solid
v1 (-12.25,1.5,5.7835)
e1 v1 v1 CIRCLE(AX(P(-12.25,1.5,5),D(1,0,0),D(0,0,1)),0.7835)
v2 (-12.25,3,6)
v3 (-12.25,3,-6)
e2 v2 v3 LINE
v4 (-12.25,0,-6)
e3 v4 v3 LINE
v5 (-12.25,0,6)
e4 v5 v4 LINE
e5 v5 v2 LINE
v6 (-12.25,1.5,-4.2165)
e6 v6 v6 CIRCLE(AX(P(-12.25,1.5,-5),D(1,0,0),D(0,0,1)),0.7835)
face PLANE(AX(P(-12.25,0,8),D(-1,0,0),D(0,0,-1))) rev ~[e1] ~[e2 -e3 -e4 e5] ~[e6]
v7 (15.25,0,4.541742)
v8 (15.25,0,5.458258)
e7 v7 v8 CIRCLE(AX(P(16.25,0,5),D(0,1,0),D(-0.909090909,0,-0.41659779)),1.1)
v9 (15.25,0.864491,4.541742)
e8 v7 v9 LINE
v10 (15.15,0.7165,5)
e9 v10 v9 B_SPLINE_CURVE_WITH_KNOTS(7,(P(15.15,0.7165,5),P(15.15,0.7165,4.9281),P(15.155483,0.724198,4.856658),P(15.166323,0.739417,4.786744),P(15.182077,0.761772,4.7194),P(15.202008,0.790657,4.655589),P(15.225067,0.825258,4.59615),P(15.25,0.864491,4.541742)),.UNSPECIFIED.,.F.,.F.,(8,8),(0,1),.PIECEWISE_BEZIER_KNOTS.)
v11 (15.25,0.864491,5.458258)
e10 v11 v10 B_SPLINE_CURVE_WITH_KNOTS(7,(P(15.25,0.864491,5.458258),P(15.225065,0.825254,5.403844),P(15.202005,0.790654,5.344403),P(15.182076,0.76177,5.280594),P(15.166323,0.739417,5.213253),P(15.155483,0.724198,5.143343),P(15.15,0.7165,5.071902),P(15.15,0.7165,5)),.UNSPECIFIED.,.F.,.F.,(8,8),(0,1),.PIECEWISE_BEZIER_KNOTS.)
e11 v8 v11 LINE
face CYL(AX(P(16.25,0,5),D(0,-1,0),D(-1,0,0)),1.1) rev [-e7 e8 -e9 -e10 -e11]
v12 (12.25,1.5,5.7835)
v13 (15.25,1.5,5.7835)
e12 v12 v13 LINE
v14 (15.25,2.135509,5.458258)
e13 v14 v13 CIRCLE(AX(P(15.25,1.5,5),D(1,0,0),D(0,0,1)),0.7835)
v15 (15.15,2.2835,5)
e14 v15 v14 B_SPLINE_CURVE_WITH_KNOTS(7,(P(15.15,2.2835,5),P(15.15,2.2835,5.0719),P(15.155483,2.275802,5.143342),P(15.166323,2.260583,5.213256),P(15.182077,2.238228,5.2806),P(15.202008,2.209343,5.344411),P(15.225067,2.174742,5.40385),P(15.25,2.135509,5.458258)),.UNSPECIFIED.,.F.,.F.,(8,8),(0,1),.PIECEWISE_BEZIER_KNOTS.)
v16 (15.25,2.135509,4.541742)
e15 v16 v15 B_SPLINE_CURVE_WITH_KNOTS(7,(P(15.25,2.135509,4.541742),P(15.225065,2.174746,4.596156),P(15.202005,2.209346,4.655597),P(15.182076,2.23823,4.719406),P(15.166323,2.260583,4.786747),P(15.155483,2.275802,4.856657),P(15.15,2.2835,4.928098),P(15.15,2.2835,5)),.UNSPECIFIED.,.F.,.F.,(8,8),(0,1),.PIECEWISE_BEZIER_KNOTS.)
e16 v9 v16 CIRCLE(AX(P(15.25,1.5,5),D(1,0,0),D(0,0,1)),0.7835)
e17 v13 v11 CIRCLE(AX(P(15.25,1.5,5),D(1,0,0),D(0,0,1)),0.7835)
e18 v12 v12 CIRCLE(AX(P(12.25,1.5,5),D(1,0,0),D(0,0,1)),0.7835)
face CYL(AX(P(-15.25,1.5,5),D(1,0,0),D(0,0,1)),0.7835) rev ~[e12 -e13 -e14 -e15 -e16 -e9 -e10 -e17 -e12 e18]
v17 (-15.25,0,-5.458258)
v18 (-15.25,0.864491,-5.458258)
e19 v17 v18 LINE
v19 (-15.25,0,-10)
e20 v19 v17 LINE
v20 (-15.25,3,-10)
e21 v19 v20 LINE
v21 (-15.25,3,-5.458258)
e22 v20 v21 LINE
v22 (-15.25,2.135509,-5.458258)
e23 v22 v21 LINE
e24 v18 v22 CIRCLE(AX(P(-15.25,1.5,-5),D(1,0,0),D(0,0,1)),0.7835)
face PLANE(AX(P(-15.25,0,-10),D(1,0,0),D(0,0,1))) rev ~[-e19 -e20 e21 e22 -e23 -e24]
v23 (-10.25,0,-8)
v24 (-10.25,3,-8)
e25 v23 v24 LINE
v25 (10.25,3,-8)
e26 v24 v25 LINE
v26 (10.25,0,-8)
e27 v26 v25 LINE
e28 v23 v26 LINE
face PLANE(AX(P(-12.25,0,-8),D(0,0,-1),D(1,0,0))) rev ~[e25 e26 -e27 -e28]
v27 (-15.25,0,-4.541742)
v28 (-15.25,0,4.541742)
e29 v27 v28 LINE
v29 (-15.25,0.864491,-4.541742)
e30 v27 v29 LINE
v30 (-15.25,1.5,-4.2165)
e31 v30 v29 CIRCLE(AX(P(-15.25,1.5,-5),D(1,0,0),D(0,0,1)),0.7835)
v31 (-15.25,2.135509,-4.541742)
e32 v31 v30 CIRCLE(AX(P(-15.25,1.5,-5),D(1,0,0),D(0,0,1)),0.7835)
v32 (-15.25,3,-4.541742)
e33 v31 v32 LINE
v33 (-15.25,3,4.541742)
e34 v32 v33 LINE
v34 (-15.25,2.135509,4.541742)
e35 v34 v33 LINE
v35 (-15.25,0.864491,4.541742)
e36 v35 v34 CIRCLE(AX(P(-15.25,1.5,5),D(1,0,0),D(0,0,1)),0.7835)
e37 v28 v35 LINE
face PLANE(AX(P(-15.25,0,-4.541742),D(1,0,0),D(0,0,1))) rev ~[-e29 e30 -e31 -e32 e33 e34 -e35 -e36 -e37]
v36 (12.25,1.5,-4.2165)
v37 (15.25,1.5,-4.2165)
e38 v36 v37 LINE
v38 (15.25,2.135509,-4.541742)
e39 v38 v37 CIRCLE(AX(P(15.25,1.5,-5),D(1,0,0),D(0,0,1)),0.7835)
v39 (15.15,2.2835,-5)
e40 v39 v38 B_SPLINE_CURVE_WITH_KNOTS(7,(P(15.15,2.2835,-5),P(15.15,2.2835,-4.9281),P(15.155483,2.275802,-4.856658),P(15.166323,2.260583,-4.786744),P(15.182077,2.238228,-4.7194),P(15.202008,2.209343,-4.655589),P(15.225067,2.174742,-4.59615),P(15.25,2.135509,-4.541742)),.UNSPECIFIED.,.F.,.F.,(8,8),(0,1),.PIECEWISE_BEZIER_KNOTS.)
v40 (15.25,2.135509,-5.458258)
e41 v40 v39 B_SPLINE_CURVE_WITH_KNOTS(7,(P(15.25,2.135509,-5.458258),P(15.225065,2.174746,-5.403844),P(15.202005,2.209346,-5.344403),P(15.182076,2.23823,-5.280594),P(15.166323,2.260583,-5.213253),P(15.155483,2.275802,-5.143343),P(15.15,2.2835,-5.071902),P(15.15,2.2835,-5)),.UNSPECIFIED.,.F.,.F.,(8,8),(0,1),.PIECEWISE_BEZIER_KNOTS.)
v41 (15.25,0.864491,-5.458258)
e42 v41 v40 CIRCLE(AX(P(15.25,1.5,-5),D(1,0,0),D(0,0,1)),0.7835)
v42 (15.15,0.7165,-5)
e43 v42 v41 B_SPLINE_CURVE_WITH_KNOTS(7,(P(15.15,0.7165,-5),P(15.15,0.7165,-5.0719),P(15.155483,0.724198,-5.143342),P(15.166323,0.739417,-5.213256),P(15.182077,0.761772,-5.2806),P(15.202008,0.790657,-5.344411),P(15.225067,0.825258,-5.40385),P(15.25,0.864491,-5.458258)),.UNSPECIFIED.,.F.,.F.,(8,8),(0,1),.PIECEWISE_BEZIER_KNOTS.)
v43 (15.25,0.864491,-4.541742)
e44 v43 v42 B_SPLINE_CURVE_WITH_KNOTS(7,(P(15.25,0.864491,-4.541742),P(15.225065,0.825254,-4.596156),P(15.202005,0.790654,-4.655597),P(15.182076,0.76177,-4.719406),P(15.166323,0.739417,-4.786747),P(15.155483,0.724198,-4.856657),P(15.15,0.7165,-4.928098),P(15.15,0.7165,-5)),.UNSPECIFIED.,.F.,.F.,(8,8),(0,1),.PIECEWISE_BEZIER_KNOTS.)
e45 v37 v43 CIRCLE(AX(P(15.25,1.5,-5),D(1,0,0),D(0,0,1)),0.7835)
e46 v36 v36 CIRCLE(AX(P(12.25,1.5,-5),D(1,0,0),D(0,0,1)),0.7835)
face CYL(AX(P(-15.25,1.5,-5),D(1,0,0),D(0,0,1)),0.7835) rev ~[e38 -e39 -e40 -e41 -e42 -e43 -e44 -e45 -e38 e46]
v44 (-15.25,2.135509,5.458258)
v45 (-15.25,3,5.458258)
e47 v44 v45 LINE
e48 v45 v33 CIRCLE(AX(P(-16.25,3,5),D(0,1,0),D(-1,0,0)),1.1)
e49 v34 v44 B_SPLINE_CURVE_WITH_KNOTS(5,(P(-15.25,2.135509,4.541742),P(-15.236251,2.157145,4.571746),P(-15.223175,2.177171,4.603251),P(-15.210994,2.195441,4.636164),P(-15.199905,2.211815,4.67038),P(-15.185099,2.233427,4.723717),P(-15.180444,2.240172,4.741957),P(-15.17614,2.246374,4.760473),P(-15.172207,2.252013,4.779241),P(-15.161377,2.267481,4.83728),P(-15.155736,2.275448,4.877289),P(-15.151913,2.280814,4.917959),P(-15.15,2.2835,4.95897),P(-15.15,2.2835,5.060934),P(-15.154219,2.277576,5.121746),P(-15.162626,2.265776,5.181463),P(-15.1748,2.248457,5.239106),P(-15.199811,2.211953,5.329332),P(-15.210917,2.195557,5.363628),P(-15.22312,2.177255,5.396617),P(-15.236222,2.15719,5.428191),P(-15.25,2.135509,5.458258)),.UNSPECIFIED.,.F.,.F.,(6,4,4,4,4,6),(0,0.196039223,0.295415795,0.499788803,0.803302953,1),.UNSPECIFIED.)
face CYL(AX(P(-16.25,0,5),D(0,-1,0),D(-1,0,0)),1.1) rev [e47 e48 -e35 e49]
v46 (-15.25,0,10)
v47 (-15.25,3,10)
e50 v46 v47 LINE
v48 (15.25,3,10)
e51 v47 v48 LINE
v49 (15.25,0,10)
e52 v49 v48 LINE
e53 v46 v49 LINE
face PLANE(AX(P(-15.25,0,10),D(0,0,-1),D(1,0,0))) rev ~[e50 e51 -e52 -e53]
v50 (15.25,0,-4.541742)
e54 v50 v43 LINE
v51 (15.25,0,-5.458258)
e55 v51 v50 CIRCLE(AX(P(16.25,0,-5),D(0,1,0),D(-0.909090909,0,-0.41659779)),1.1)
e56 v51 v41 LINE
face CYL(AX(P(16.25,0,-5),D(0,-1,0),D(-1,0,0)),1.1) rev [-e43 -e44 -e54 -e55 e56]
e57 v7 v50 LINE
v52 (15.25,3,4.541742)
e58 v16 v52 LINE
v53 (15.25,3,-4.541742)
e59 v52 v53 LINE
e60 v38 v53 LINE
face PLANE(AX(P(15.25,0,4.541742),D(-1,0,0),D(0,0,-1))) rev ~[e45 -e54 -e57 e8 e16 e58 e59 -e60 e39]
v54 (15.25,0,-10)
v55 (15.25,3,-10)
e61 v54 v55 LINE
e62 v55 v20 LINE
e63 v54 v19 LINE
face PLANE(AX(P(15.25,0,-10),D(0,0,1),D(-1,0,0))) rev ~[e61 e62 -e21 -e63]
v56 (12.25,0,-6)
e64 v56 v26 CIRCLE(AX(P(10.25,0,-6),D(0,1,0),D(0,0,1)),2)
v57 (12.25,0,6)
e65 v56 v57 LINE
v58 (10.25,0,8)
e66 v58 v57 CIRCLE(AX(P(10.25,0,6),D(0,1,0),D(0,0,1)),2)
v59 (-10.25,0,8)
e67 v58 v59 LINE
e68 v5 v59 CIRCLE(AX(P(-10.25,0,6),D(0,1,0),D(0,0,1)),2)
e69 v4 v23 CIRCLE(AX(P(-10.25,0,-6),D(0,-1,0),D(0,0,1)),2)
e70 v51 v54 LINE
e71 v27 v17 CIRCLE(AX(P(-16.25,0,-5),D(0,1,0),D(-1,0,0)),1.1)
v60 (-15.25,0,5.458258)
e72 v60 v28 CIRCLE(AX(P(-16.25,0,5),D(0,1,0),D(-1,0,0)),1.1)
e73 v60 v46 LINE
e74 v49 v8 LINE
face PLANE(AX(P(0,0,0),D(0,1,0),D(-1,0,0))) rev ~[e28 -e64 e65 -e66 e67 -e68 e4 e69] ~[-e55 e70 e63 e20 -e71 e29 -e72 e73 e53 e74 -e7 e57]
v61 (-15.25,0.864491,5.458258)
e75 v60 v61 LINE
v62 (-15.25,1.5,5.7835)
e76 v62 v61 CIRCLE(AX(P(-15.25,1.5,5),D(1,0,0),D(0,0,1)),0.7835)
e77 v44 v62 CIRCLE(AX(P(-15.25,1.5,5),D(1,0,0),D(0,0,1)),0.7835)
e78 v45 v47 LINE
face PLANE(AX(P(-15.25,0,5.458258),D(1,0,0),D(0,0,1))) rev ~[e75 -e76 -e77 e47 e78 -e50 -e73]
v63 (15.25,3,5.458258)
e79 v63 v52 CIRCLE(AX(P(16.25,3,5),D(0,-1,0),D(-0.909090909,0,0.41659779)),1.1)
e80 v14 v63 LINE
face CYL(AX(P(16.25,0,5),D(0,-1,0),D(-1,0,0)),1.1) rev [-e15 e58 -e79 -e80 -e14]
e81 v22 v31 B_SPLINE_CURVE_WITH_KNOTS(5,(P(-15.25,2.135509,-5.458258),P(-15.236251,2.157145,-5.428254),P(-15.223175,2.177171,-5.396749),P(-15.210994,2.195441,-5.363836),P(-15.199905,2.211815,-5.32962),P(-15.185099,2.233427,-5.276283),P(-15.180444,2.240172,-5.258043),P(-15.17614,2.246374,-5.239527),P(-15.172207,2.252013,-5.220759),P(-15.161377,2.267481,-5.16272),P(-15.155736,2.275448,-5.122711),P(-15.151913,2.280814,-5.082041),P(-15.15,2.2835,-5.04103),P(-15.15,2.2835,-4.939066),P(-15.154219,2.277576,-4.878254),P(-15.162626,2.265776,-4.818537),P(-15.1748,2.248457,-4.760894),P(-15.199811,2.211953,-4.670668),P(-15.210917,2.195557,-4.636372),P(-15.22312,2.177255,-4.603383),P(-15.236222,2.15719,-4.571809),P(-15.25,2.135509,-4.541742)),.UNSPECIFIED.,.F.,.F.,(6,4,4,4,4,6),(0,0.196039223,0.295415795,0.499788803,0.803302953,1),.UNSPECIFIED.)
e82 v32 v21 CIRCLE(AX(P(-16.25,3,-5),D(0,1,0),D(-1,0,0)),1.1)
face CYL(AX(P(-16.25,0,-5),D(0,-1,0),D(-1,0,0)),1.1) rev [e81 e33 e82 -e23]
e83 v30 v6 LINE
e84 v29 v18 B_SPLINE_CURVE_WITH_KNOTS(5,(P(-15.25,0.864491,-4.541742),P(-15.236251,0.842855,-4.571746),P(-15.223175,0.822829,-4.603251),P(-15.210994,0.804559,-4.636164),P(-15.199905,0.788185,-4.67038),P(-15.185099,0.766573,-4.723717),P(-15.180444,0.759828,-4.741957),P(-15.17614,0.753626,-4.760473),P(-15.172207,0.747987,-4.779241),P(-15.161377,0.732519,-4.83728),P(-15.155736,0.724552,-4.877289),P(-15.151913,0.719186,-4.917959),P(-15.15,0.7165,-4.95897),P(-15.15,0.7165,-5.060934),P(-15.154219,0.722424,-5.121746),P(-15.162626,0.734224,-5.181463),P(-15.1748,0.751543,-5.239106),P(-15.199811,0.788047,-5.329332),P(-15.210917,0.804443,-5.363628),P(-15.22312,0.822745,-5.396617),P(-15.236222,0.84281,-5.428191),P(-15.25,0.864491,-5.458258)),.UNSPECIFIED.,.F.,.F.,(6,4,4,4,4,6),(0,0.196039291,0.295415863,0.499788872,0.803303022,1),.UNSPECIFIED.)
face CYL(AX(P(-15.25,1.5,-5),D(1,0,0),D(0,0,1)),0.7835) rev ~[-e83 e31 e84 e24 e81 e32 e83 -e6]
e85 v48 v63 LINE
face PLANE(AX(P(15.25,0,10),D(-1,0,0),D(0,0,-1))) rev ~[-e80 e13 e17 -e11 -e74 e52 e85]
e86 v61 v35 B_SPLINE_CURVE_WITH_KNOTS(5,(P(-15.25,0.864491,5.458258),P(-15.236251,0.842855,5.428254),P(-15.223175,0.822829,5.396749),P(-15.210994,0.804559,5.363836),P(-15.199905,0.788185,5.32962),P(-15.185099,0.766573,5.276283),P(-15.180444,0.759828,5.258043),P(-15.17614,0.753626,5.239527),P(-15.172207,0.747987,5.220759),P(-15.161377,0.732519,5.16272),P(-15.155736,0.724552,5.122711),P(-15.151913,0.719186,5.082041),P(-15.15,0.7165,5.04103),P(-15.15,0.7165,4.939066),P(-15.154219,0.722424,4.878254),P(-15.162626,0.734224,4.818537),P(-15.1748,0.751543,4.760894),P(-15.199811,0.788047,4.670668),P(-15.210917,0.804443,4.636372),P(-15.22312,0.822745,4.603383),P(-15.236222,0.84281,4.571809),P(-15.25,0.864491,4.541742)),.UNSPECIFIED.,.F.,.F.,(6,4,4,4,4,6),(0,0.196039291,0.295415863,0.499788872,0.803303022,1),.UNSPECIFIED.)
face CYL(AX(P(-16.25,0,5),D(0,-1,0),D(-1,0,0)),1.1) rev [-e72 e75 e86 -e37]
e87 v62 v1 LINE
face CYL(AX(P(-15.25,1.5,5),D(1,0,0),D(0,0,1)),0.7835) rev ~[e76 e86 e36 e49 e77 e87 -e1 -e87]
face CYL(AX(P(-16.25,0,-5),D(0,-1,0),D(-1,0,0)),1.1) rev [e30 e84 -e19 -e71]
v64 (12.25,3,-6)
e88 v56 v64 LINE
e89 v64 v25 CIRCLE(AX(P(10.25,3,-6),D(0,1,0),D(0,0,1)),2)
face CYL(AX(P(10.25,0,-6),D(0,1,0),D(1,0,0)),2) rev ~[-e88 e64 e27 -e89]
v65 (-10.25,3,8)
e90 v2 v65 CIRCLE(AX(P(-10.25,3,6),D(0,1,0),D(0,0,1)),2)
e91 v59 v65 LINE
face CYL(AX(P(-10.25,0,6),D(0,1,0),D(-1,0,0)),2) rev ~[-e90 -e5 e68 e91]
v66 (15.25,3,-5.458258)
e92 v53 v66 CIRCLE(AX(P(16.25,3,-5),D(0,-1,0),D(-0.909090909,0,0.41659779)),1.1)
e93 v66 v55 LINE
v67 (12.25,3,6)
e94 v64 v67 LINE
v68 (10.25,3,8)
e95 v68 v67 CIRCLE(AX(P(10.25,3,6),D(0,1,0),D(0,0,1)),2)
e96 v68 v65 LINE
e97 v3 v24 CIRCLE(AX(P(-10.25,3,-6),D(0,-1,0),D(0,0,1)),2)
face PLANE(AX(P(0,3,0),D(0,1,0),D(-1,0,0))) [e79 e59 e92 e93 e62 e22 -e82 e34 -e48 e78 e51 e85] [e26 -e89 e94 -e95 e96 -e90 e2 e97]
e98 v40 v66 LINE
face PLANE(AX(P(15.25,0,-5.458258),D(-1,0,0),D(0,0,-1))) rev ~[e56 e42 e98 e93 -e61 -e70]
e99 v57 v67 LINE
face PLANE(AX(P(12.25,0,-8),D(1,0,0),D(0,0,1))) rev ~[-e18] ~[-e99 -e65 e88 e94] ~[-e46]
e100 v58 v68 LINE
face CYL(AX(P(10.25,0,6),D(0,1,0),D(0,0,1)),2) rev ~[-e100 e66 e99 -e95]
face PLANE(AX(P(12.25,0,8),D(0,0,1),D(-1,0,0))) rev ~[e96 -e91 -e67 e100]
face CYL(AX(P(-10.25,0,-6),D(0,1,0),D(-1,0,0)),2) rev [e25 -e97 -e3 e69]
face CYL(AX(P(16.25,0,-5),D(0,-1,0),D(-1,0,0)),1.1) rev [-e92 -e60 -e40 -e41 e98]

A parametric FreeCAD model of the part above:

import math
import FreeCAD as App
import Part
import Sketcher

V = App.Vector
Q = App.Units.Quantity


def edges_at(feature, points):
    """Names of the edges that pass closest to the given points."""
    edges = feature.Shape.Edges
    near = lambda p: min(range(len(edges)), key=lambda i: edges[i].distToShape(Part.Vertex(*p))[0])
    return sorted({f"Edge{near(p) + 1}" for p in points})

doc = App.newDocument("Part")
body = doc.addObject("PartDesign::Body", "Body")

sketch1 = body.newObject("Sketcher::SketchObject", "Sketch")
sketch1.AttachmentSupport = (doc.getObject("XZ_Plane"), [""])
sketch1.MapMode = "FlatFace"
sketch1.addGeometry(Part.LineSegment(V(-15.2, 5.5, 0), V(-15.2, 10, 0)), False)
sketch1.addGeometry(Part.LineSegment(V(-15.2, 10, 0), V(15.2, 10, 0)), False)
sketch1.addGeometry(Part.LineSegment(V(15.2, 10, 0), V(15.2, 5.5, 0)), False)
sketch1.addGeometry(Part.ArcOfCircle(Part.Circle(V(16.2, 5, 0), V(0, 0, 1), 1.1), math.radians(155), math.radians(205)), False)
sketch1.addGeometry(Part.LineSegment(V(15.2, 4.5, 0), V(15.2, -4.5, 0)), False)
sketch1.addGeometry(Part.ArcOfCircle(Part.Circle(V(16.2, -5, 0), V(0, 0, 1), 1.1), math.radians(155), math.radians(205)), False)
sketch1.addGeometry(Part.LineSegment(V(15.2, -5.5, 0), V(15.2, -10, 0)), False)
sketch1.addGeometry(Part.LineSegment(V(15.2, -10, 0), V(-15.2, -10, 0)), False)
sketch1.addGeometry(Part.LineSegment(V(-15.2, -10, 0), V(-15.2, -5.5, 0)), False)
sketch1.addGeometry(Part.ArcOfCircle(Part.Circle(V(-16.2, -5, 0), V(0, 0, 1), 1.1), math.radians(-25), math.radians(25)), False)
sketch1.addGeometry(Part.LineSegment(V(-15.2, -4.5, 0), V(-15.2, 4.5, 0)), False)
sketch1.addGeometry(Part.ArcOfCircle(Part.Circle(V(-16.2, 5, 0), V(0, 0, 1), 1.1), math.radians(-25), math.radians(25)), False)
sketch1.addGeometry(Part.LineSegment(V(-12.2, 8, 0), V(-12.2, -8, 0)), False)
sketch1.addGeometry(Part.LineSegment(V(-12.2, -8, 0), V(12.2, -8, 0)), False)
sketch1.addGeometry(Part.LineSegment(V(12.2, -8, 0), V(12.2, 8, 0)), False)
sketch1.addGeometry(Part.LineSegment(V(12.2, 8, 0), V(-12.2, 8, 0)), False)
sketch1.addConstraint(Sketcher.Constraint("Coincident", 0, 2, 1, 1))
sketch1.addConstraint(Sketcher.Constraint("Coincident", 1, 2, 2, 1))
sketch1.addConstraint(Sketcher.Constraint("Coincident", 2, 2, 3, 1))
sketch1.addConstraint(Sketcher.Constraint("Coincident", 3, 2, 4, 1))
sketch1.addConstraint(Sketcher.Constraint("Coincident", 4, 2, 5, 1))
sketch1.addConstraint(Sketcher.Constraint("Coincident", 5, 2, 6, 1))
sketch1.addConstraint(Sketcher.Constraint("Coincident", 6, 2, 7, 1))
sketch1.addConstraint(Sketcher.Constraint("Coincident", 7, 2, 8, 1))
sketch1.addConstraint(Sketcher.Constraint("Coincident", 8, 2, 9, 1))
sketch1.addConstraint(Sketcher.Constraint("Coincident", 9, 2, 10, 1))
sketch1.addConstraint(Sketcher.Constraint("Coincident", 10, 2, 11, 1))
sketch1.addConstraint(Sketcher.Constraint("Coincident", 11, 2, 0, 1))
sketch1.addConstraint(Sketcher.Constraint("Coincident", 12, 2, 13, 1))
sketch1.addConstraint(Sketcher.Constraint("Coincident", 13, 2, 14, 1))
sketch1.addConstraint(Sketcher.Constraint("Coincident", 14, 2, 15, 1))
sketch1.addConstraint(Sketcher.Constraint("Coincident", 15, 2, 12, 1))
sketch1.addConstraint(Sketcher.Constraint("Vertical", 0))
sketch1.addConstraint(Sketcher.Constraint("Horizontal", 1))
sketch1.addConstraint(Sketcher.Constraint("Vertical", 2))
sketch1.addConstraint(Sketcher.Constraint("Vertical", 4))
sketch1.addConstraint(Sketcher.Constraint("Vertical", 6))
sketch1.addConstraint(Sketcher.Constraint("Horizontal", 7))
sketch1.addConstraint(Sketcher.Constraint("Vertical", 8))
sketch1.addConstraint(Sketcher.Constraint("Vertical", 10))
sketch1.addConstraint(Sketcher.Constraint("Vertical", 12))
sketch1.addConstraint(Sketcher.Constraint("Horizontal", 13))
sketch1.addConstraint(Sketcher.Constraint("Vertical", 14))
sketch1.addConstraint(Sketcher.Constraint("Horizontal", 15))
sketch1.addConstraint(Sketcher.Constraint("Equal", 3, 5))
sketch1.addConstraint(Sketcher.Constraint("Equal", 5, 9))
sketch1.addConstraint(Sketcher.Constraint("Equal", 9, 11))
sketch1.addConstraint(Sketcher.Constraint("Symmetric", 3, 3, 9, 3, -1, 1))
sketch1.addConstraint(Sketcher.Constraint("Symmetric", 5, 3, 11, 3, -1, 1))
sketch1.addConstraint(Sketcher.Constraint("Symmetric", 0, 2, 6, 2, -1, 1))
sketch1.addConstraint(Sketcher.Constraint("Symmetric", 12, 2, 14, 2, -1, 1))
sketch1.addConstraint(Sketcher.Constraint("Symmetric", 5, 3, 9, 3, -2))
sketch1.addConstraint(Sketcher.Constraint("Horizontal", 5, 2, 8, 2))
sketch1.addConstraint(Sketcher.Constraint("Horizontal", 4, 2, 9, 2))
sketch1.addConstraint(Sketcher.Constraint("Horizontal", 2, 2, 11, 2))
sketch1.addConstraint(Sketcher.Constraint("Vertical", 2, 2, 3, 2))
sketch1.addConstraint(Sketcher.Constraint("Radius", 3, Q("1.1 mm")))
sketch1.addConstraint(Sketcher.Constraint("DistanceX", 1, 1, 1, 2, Q("30.5 mm")))
sketch1.addConstraint(Sketcher.Constraint("DistanceY", -1, 1, 0, 2, Q("10 mm")))
sketch1.addConstraint(Sketcher.Constraint("DistanceY", 5, 3, 3, 3, Q("10 mm")))
sketch1.addConstraint(Sketcher.Constraint("DistanceX", 11, 3, 0, 2, Q("1 mm")))
sketch1.addConstraint(Sketcher.Constraint("DistanceX", 7, 2, 12, 2, Q("3 mm")))
sketch1.addConstraint(Sketcher.Constraint("DistanceY", 7, 2, 12, 2, Q("2 mm")))
pad1 = body.newObject("PartDesign::Pad", "Pad")
pad1.Profile = sketch1
pad1.Length = 3
pad1.Reversed = True
doc.recompute()

fillet = body.newObject("PartDesign::Fillet", "Fillet")
fillet.Base = (pad1, edges_at(pad1, [
    (12.25, 1.5, -8),
    (12.25, 1.5, 8),
    (-12.25, 1.5, 8),
    (-12.25, 1.5, -8),
]))
fillet.Radius = 2

sketch2 = body.newObject("Sketcher::SketchObject", "Sketch001")
sketch2.AttachmentSupport = (doc.getObject("YZ_Plane"), [""])
sketch2.MapMode = "FlatFace"
sketch2.AttachmentOffset = App.Placement(V(0, 0, -15.25), App.Rotation())
sketch2.addGeometry(Part.Circle(V(1.5, 5, 0), V(0, 0, 1), 0.8), False)
sketch2.addGeometry(Part.Circle(V(1.5, -5, 0), V(0, 0, 1), 0.8), False)
sketch2.addConstraint(Sketcher.Constraint("Equal", 0, 1))
sketch2.addConstraint(Sketcher.Constraint("Symmetric", 0, 3, 1, 3, -1))
sketch2.addConstraint(Sketcher.Constraint("Diameter", 0, Q("1.567 mm")))
sketch2.addConstraint(Sketcher.Constraint("DistanceY", -1, 1, 0, 3, Q("5 mm")))
sketch2.addConstraint(Sketcher.Constraint("DistanceX", -1, 1, 0, 3, Q("1.5 mm")))
doc.recompute()
hole = body.newObject("PartDesign::Hole", "Hole")
hole.Profile = sketch2
hole.ThreadType = "None"
hole.Diameter = 1.567
hole.DepthType = "ThroughAll"
hole.Reversed = True

doc.recompute()
